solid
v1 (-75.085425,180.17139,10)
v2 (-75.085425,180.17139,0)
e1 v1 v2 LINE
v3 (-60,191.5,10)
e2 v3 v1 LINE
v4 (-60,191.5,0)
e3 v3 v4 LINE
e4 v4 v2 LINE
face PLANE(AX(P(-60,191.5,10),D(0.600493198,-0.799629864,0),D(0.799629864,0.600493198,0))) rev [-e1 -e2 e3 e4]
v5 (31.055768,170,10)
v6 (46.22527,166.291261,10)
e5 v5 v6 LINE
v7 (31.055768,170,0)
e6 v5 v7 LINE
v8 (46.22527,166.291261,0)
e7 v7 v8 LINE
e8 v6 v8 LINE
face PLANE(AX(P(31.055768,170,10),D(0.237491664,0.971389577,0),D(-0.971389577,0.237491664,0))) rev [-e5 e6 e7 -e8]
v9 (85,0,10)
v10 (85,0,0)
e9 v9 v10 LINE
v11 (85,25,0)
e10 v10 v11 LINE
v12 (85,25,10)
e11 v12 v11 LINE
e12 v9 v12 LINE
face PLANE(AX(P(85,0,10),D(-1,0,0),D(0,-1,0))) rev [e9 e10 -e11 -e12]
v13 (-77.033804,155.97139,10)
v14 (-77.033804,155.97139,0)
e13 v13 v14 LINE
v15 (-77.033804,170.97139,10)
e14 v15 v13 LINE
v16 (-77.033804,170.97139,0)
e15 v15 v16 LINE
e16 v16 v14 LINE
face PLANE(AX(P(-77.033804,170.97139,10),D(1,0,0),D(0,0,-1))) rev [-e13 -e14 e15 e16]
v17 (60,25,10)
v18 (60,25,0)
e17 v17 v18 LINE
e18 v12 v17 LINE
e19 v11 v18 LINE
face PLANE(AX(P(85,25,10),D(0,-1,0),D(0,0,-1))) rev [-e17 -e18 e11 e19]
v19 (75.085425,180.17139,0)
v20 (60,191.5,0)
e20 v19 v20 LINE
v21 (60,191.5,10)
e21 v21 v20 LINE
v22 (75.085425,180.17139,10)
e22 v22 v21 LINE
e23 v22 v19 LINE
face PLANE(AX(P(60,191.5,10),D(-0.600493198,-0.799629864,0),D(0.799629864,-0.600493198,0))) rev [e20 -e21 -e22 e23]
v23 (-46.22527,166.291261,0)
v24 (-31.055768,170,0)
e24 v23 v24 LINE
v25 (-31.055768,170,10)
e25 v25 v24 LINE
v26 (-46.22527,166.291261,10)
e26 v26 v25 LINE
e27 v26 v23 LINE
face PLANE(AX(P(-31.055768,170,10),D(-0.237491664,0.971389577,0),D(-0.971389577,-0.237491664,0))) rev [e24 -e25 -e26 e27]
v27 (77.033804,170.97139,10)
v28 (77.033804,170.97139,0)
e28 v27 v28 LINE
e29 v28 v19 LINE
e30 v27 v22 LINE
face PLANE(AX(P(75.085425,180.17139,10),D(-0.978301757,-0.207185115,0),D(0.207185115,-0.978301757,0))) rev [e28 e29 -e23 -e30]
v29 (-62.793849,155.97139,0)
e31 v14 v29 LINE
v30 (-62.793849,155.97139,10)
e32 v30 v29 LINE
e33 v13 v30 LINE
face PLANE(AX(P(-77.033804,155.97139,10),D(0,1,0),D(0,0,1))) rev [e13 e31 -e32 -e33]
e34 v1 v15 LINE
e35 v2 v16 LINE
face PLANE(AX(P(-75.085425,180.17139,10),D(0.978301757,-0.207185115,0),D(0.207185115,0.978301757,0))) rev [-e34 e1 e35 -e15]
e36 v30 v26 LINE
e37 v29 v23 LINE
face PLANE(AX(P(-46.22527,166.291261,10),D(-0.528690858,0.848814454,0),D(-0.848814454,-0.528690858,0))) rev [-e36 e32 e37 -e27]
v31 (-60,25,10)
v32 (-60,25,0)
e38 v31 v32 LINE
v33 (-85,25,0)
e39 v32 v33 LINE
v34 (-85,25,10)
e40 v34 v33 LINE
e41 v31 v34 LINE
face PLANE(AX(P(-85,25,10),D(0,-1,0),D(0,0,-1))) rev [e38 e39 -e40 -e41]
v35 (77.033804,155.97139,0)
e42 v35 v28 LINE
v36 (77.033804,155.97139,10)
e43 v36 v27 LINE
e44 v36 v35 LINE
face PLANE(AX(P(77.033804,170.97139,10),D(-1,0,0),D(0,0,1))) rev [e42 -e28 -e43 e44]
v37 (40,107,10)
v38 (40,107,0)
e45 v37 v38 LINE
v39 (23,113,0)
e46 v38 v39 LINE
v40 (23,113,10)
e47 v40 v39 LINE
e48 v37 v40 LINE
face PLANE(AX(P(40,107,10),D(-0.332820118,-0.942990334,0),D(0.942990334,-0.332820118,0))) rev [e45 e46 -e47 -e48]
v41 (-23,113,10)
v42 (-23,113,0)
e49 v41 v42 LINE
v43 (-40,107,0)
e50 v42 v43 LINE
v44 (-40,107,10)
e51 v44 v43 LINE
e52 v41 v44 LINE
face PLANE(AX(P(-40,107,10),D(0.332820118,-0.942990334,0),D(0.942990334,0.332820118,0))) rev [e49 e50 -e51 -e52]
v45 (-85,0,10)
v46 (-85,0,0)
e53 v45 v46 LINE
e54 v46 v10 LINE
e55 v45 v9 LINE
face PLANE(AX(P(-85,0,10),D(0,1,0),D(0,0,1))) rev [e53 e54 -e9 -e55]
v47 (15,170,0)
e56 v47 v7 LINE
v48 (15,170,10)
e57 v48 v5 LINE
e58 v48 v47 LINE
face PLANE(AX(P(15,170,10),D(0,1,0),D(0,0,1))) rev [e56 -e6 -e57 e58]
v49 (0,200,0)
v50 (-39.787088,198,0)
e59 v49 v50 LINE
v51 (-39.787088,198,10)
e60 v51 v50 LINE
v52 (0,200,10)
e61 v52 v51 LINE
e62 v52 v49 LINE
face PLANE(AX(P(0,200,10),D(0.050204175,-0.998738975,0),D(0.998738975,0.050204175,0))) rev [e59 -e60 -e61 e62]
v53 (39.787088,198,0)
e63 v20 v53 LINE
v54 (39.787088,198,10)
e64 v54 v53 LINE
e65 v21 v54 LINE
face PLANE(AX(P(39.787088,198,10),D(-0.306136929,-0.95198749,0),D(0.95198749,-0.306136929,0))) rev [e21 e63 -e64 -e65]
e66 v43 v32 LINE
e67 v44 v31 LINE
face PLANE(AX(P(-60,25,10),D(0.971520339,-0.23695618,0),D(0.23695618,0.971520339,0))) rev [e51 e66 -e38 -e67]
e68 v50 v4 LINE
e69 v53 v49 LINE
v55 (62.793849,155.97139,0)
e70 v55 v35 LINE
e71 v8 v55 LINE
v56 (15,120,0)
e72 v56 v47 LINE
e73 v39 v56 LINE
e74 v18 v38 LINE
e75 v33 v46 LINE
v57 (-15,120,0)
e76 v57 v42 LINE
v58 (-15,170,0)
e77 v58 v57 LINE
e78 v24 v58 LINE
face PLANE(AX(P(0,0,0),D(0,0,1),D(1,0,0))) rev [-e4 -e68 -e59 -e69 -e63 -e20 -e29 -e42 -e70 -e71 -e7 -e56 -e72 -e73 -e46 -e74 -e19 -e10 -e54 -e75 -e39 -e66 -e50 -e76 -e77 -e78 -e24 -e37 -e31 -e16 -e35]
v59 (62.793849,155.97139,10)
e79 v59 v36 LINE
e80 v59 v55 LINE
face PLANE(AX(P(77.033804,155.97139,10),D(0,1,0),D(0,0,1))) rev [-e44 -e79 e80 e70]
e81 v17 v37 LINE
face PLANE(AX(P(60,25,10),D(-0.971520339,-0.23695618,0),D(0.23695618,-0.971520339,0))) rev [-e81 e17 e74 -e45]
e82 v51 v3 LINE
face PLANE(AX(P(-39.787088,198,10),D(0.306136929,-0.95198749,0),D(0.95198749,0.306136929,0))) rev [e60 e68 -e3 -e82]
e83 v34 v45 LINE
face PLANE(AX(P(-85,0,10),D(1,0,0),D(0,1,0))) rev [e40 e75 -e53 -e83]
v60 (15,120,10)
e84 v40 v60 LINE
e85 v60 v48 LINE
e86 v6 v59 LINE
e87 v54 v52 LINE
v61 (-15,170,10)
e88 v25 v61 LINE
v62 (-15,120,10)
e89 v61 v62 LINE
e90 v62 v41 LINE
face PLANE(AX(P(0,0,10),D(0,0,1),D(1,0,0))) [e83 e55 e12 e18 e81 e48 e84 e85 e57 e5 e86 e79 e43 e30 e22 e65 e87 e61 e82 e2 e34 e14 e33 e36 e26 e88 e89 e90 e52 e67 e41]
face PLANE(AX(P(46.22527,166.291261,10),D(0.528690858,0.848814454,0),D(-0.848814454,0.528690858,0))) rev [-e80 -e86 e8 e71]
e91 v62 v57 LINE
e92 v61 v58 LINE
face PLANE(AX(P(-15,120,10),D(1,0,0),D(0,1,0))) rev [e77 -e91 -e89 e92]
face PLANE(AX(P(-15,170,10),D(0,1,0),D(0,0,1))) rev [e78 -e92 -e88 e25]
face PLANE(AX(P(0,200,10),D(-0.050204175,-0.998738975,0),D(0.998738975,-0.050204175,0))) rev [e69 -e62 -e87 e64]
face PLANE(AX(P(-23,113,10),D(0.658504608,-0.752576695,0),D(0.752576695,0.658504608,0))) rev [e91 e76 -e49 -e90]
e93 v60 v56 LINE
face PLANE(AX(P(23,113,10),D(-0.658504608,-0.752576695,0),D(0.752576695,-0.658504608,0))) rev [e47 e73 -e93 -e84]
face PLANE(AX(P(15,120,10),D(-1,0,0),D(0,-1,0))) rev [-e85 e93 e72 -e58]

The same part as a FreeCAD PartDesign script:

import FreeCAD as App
import Part
import Sketcher
from FreeCAD import Vector

doc = App.newDocument("Part")
params = doc.addObject("Spreadsheet::Sheet", "Params")
for row, (alias, value) in enumerate([
    ("sketch1_width", "25 mm"),
    ("sketch1_width2", "170 mm"),
    ("sketch1_height", "50 mm"),
    ("sketch1_height2", "15 mm"),
    ("pad1_length", "10 mm"),
], start=1):
    params.set(f"A{row}", alias)
    params.set(f"B{row}", "=" + value)
    params.setAlias(f"B{row}", alias)

body = doc.addObject("PartDesign::Body", "Body")

# Sketch on XY plane
sketch1 = doc.addObject("Sketcher::SketchObject", "Sketch")
body.addObject(sketch1)
sketch1.AttachmentSupport = (doc.XY_Plane, [""])
sketch1.MapMode = "FlatFace"
sketch1.addGeometry([
    Part.LineSegment(Vector(40, 107, 0), Vector(23, 113, 0)),  # 0
    Part.LineSegment(Vector(23, 113, 0), Vector(15, 120, 0)),  # 1
    Part.LineSegment(Vector(15, 120, 0), Vector(15, 170, 0)),  # 2
    Part.LineSegment(Vector(15, 170, 0), Vector(31, 170, 0)),  # 3
    Part.LineSegment(Vector(31, 170, 0), Vector(46, 166, 0)),  # 4
    Part.LineSegment(Vector(46, 166, 0), Vector(63, 156, 0)),  # 5
    Part.LineSegment(Vector(63, 156, 0), Vector(77, 156, 0)),  # 6
    Part.LineSegment(Vector(77, 156, 0), Vector(77, 171, 0)),  # 7
    Part.LineSegment(Vector(77, 171, 0), Vector(75, 180, 0)),  # 8
    Part.LineSegment(Vector(75, 180, 0), Vector(60, 192, 0)),  # 9
    Part.LineSegment(Vector(60, 192, 0), Vector(40, 198, 0)),  # 10
    Part.LineSegment(Vector(40, 198, 0), Vector(0, 200, 0)),  # 11
    Part.LineSegment(Vector(0, 200, 0), Vector(-40, 198, 0)),  # 12
    Part.LineSegment(Vector(-40, 198, 0), Vector(-60, 192, 0)),  # 13
    Part.LineSegment(Vector(-60, 192, 0), Vector(-75, 180, 0)),  # 14
    Part.LineSegment(Vector(-75, 180, 0), Vector(-77, 171, 0)),  # 15
    Part.LineSegment(Vector(-77, 171, 0), Vector(-77, 156, 0)),  # 16
    Part.LineSegment(Vector(-77, 156, 0), Vector(-63, 156, 0)),  # 17
    Part.LineSegment(Vector(-63, 156, 0), Vector(-46, 166, 0)),  # 18
    Part.LineSegment(Vector(-46, 166, 0), Vector(-31, 170, 0)),  # 19
    Part.LineSegment(Vector(-31, 170, 0), Vector(-15, 170, 0)),  # 20
    Part.LineSegment(Vector(-15, 170, 0), Vector(-15, 120, 0)),  # 21
    Part.LineSegment(Vector(-15, 120, 0), Vector(-23, 113, 0)),  # 22
    Part.LineSegment(Vector(-23, 113, 0), Vector(-40, 107, 0)),  # 23
    Part.LineSegment(Vector(-40, 107, 0), Vector(-60, 25, 0)),  # 24
    Part.LineSegment(Vector(-60, 25, 0), Vector(-85, 25, 0)),  # 25
    Part.LineSegment(Vector(-85, 25, 0), Vector(-85, 0, 0)),  # 26
    Part.LineSegment(Vector(-85, 0, 0), Vector(85, 0, 0)),  # 27
    Part.LineSegment(Vector(85, 0, 0), Vector(85, 25, 0)),  # 28
    Part.LineSegment(Vector(85, 25, 0), Vector(60, 25, 0)),  # 29
    Part.LineSegment(Vector(60, 25, 0), Vector(40, 107, 0)),  # 30
], False)
sketch1.addConstraint([
    Sketcher.Constraint("Coincident", 0, 2, 1, 1),
    Sketcher.Constraint("Coincident", 1, 2, 2, 1),
    Sketcher.Constraint("Coincident", 2, 2, 3, 1),
    Sketcher.Constraint("Coincident", 3, 2, 4, 1),
    Sketcher.Constraint("Coincident", 4, 2, 5, 1),
    Sketcher.Constraint("Coincident", 5, 2, 6, 1),
    Sketcher.Constraint("Coincident", 6, 2, 7, 1),
    Sketcher.Constraint("Coincident", 7, 2, 8, 1),
    Sketcher.Constraint("Coincident", 8, 2, 9, 1),
    Sketcher.Constraint("Coincident", 9, 2, 10, 1),
    Sketcher.Constraint("Coincident", 10, 2, 11, 1),
    Sketcher.Constraint("Coincident", 11, 2, 12, 1),
    Sketcher.Constraint("Coincident", 12, 2, 13, 1),
    Sketcher.Constraint("Coincident", 13, 2, 14, 1),
    Sketcher.Constraint("Coincident", 14, 2, 15, 1),
    Sketcher.Constraint("Coincident", 15, 2, 16, 1),
    Sketcher.Constraint("Coincident", 16, 2, 17, 1),
    Sketcher.Constraint("Coincident", 17, 2, 18, 1),
    Sketcher.Constraint("Coincident", 18, 2, 19, 1),
    Sketcher.Constraint("Coincident", 19, 2, 20, 1),
    Sketcher.Constraint("Coincident", 20, 2, 21, 1),
    Sketcher.Constraint("Coincident", 21, 2, 22, 1),
    Sketcher.Constraint("Coincident", 22, 2, 23, 1),
    Sketcher.Constraint("Coincident", 23, 2, 24, 1),
    Sketcher.Constraint("Coincident", 24, 2, 25, 1),
    Sketcher.Constraint("Coincident", 25, 2, 26, 1),
    Sketcher.Constraint("Coincident", 26, 2, 27, 1),
    Sketcher.Constraint("Coincident", 27, 2, 28, 1),
    Sketcher.Constraint("Coincident", 28, 2, 29, 1),
    Sketcher.Constraint("Coincident", 29, 2, 30, 1),
    Sketcher.Constraint("Coincident", 30, 2, 0, 1),
    Sketcher.Constraint("Vertical", 2),
    Sketcher.Constraint("Horizontal", 3),
    Sketcher.Constraint("Horizontal", 6),
    Sketcher.Constraint("Vertical", 7),
    Sketcher.Constraint("Vertical", 16),
    Sketcher.Constraint("Horizontal", 17),
    Sketcher.Constraint("Horizontal", 20),
    Sketcher.Constraint("Vertical", 21),
    Sketcher.Constraint("Horizontal", 25),
    Sketcher.Constraint("Vertical", 26),
    Sketcher.Constraint("Horizontal", 27),
    Sketcher.Constraint("Vertical", 28),
    Sketcher.Constraint("Horizontal", 29),
    Sketcher.Constraint("Symmetric", 26, 2, 27, 2, -1, 1),
    Sketcher.Constraint("Symmetric", 10, 2, 12, 2, -2),
    Sketcher.Constraint("Symmetric", 9, 2, 13, 2, -2),
    Sketcher.Constraint("Symmetric", 8, 2, 14, 2, -2),
    Sketcher.Constraint("Symmetric", 7, 2, 15, 2, -2),
    Sketcher.Constraint("Symmetric", 5, 2, 17, 2, -2),
    Sketcher.Constraint("Symmetric", 4, 2, 18, 2, -2),
    Sketcher.Constraint("Symmetric", 3, 2, 19, 2, -2),
    Sketcher.Constraint("Symmetric", 1, 2, 21, 2, -2),
    Sketcher.Constraint("Symmetric", 0, 2, 22, 2, -2),
    Sketcher.Constraint("Symmetric", 24, 2, 29, 2, -2),
    Sketcher.Constraint("Symmetric", 23, 2, 30, 2, -2),
    Sketcher.Constraint("PointOnObject", 11, 2, -2),
    Sketcher.Constraint("Vertical", 13, 2, 24, 2),
    Sketcher.Constraint("Equal", 29, 26),
    Sketcher.Constraint("DistanceX", 25, 2, 25, 1, 25.0),
    Sketcher.Constraint("DistanceX", 27, 1, 27, 2, 170.0),
    Sketcher.Constraint("DistanceY", 2, 1, 2, 2, 50.0),
    Sketcher.Constraint("DistanceY", 7, 1, 7, 2, 15.0),
    Sketcher.Constraint("DistanceX", -1, 1, 0, 2, 23.0),
    Sketcher.Constraint("DistanceY", -1, 1, 0, 2, 113.0),
    Sketcher.Constraint("DistanceX", -1, 1, 1, 2, 15.0),
    Sketcher.Constraint("DistanceY", -1, 1, 1, 2, 120.0),
    Sketcher.Constraint("DistanceY", -1, 1, 10, 2, 198.0),
    Sketcher.Constraint("DistanceY", -1, 1, 11, 2, 200.0),
    Sketcher.Constraint("DistanceX", 23, 2, -1, 1, 40.0),
    Sketcher.Constraint("DistanceY", -1, 1, 23, 2, 107.0),
    Sketcher.Constraint("DistanceY", -1, 1, 9, 2, 191.5),
    Sketcher.Constraint("DistanceY", 7, 2, 8, 2, 9.2),
    Sketcher.Constraint("DistanceX", 3, 1, 3, 2, 16.055768),
    Sketcher.Constraint("DistanceX", 3, 2, 4, 2, 15.169502),
    Sketcher.Constraint("Distance", 4, 15.61629),
    Sketcher.Constraint("Distance", 5, 19.519671),
    Sketcher.Constraint("Distance", 8, 9.404051),
    Sketcher.Constraint("Distance", 9, 18.86551),
    Sketcher.Constraint("Distance", 10, 21.232329),
    Sketcher.Constraint("DistanceX", 6, 1, 6, 2, 14.239956),
])
sketch1.setExpression("Constraints[59]", "Params.sketch1_width")
sketch1.setExpression("Constraints[60]", "Params.sketch1_width2")
sketch1.setExpression("Constraints[61]", "Params.sketch1_height")
sketch1.setExpression("Constraints[62]", "Params.sketch1_height2")
pad1 = doc.addObject("PartDesign::Pad", "Pad")
body.addObject(pad1)
pad1.Profile = sketch1
pad1.setExpression("Length", "Params.pad1_length")

doc.recompute()
